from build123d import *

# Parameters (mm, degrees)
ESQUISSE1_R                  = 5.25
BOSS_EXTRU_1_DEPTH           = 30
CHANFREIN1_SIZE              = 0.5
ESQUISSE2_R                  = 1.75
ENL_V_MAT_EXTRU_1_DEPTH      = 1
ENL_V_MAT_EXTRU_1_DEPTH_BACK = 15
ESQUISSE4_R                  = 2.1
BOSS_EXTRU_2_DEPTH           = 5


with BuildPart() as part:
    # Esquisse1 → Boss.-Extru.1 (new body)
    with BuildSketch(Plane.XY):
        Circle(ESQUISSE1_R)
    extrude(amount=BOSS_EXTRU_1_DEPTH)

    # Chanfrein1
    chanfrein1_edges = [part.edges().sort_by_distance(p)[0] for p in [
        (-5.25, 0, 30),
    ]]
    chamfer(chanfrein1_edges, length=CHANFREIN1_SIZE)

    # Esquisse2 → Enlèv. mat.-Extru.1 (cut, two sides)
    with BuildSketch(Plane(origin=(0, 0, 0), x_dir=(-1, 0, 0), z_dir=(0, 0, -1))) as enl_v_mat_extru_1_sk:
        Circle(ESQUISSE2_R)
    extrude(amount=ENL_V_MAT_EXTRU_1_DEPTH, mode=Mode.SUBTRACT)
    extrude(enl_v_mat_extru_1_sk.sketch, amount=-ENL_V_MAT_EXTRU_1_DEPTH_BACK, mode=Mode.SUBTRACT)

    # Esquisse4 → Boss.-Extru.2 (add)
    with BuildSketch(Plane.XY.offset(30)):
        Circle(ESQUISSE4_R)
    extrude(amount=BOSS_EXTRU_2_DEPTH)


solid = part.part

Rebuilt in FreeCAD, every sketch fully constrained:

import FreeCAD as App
import Part
import Sketcher

V = App.Vector


def edges_at(feature, points):
    """Names of the edges that pass closest to the given points."""
    edges = feature.Shape.Edges
    near = lambda p: min(range(len(edges)), key=lambda i: edges[i].distToShape(Part.Vertex(*p))[0])
    return sorted({f"Edge{near(p) + 1}" for p in points})

doc = App.newDocument("Part")
body = doc.addObject("PartDesign::Body", "Body")

sketch1 = doc.addObject("Sketcher::SketchObject", "Sketch")
body.addObject(sketch1)
sketch1.AttachmentSupport = (doc.XY_Plane, [""])
sketch1.MapMode = "FlatFace"
sketch1.addGeometry(Part.Circle(V(0, 0, 0), V(0, 0, 1), 5), False)
sketch1.addConstraint(Sketcher.Constraint("Coincident", 0, 3, -1, 1))
sketch1.addConstraint(Sketcher.Constraint("Diameter", 0, 10.5))
pad1 = doc.addObject("PartDesign::Pad", "Pad")
body.addObject(pad1)
pad1.Profile = sketch1
pad1.Length = 30
doc.recompute()

chamfer = doc.addObject("PartDesign::Chamfer", "Chamfer")
body.addObject(chamfer)
chamfer.Base = (pad1, edges_at(pad1, [(-5.25, 0, 30)]))
chamfer.Size = 0.5

sketch2 = doc.addObject("Sketcher::SketchObject", "Sketch001")
body.addObject(sketch2)
sketch2.AttachmentSupport = (doc.XY_Plane, [""])
sketch2.MapMode = "FlatFace"
sketch2.addGeometry(Part.Circle(V(0, 0, 0), V(0, 0, 1), 1.8), False)
sketch2.addConstraint(Sketcher.Constraint("Coincident", 0, 3, -1, 1))
sketch2.addConstraint(Sketcher.Constraint("Diameter", 0, 3.5))
pocket1 = doc.addObject("PartDesign::Pocket", "Pocket")
body.addObject(pocket1)
pocket1.Profile = sketch2
pocket1.Type = "TwoLengths"
pocket1.Length = 1
pocket1.Length2 = 15

sketch3 = doc.addObject("Sketcher::SketchObject", "Sketch002")
body.addObject(sketch3)
sketch3.AttachmentSupport = (doc.XY_Plane, [""])
sketch3.MapMode = "FlatFace"
sketch3.AttachmentOffset = App.Placement(V(0, 0, 30), App.Rotation())
sketch3.addGeometry(Part.Circle(V(0, 0, 0), V(0, 0, 1), 2.1), False)
sketch3.addConstraint(Sketcher.Constraint("Coincident", 0, 3, -1, 1))
sketch3.addConstraint(Sketcher.Constraint("Diameter", 0, 4.2))
pad2 = doc.addObject("PartDesign::Pad", "Pad001")
body.addObject(pad2)
pad2.Profile = sketch3
pad2.Length = 5

doc.recompute()
